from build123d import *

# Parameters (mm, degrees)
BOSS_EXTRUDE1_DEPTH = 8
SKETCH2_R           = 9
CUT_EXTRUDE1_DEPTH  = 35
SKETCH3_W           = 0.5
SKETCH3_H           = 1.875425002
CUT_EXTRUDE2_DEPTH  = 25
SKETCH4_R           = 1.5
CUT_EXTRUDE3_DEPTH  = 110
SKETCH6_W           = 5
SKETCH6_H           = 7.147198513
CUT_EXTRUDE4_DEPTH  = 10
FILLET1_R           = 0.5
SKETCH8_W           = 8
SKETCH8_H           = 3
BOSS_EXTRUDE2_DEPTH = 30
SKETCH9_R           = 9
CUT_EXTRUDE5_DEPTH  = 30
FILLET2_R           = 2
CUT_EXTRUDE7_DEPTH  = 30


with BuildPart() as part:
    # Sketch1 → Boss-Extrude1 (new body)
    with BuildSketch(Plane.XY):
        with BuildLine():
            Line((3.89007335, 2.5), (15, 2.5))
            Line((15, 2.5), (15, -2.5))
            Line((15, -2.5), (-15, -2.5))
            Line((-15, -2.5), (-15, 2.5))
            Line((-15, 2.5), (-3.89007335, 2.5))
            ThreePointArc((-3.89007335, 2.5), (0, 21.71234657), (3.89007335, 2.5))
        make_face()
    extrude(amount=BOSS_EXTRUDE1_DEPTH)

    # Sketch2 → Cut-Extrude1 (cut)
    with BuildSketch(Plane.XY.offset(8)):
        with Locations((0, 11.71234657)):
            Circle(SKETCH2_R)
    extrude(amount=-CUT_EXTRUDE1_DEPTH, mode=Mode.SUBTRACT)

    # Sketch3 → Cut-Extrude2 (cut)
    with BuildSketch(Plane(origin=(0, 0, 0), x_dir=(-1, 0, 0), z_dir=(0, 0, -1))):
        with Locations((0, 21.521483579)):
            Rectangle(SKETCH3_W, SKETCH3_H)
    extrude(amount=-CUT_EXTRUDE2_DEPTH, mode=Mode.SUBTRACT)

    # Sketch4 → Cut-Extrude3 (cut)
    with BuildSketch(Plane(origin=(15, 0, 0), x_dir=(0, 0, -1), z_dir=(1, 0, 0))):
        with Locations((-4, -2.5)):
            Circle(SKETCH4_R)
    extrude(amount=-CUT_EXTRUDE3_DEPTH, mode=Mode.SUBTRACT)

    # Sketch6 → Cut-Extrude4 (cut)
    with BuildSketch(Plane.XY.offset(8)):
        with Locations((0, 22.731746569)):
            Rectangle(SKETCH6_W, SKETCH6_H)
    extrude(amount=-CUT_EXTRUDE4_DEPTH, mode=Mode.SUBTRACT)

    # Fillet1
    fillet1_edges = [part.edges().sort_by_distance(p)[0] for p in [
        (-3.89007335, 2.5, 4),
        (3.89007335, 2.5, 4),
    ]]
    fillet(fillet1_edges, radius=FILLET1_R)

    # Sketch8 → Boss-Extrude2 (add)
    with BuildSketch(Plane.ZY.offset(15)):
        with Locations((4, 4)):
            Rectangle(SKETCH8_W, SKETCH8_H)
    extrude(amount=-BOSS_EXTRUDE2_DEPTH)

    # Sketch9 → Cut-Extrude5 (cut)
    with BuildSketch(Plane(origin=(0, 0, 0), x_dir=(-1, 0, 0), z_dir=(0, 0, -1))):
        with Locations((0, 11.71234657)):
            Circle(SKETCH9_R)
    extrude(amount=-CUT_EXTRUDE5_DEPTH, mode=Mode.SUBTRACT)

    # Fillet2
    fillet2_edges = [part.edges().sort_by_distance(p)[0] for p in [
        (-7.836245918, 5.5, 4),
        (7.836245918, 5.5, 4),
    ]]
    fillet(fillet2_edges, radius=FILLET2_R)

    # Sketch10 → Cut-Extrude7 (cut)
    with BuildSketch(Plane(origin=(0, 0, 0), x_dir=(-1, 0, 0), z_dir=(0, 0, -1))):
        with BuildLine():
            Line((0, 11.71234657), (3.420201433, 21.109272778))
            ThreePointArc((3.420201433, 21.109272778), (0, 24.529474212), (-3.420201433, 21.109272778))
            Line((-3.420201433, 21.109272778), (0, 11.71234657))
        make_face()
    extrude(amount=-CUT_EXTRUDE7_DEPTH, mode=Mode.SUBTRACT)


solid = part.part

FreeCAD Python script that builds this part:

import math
import FreeCAD as App
import Part
import Sketcher
from FreeCAD import Vector
Q = App.Units.Quantity


def edges_at(feature, points):
    """Names of the edges that pass closest to the given points."""
    edges = feature.Shape.Edges
    near = lambda p: min(range(len(edges)), key=lambda i: edges[i].distToShape(Part.Vertex(*p))[0])
    return sorted({f"Edge{near(p) + 1}" for p in points})

doc = App.newDocument("Part")
body = doc.addObject("PartDesign::Body", "Body")

# Sketch on XY plane
sketch1 = doc.addObject("Sketcher::SketchObject", "Sketch")
body.addObject(sketch1)
sketch1.AttachmentSupport = (doc.XY_Plane, [""])
sketch1.MapMode = "FlatFace"
sketch1.addGeometry([
    Part.LineSegment(Vector(15, 2, 0), Vector(4, 2, 0)),  # 0
    Part.ArcOfCircle(Part.Circle(Vector(0, 12, 0), Vector(0, 0, 1), 10), math.radians(-67), math.radians(247)),  # 1
    Part.LineSegment(Vector(-4, 2, 0), Vector(-15, 2, 0)),  # 2
    Part.LineSegment(Vector(-15, 2, 0), Vector(-15, -2, 0)),  # 3
    Part.LineSegment(Vector(-15, -2, 0), Vector(15, -2, 0)),  # 4
    Part.LineSegment(Vector(15, -2, 0), Vector(15, 2, 0)),  # 5
], False)
sketch1.addConstraint([
    Sketcher.Constraint("Coincident", 0, 2, 1, 1),
    Sketcher.Constraint("Coincident", 1, 2, 2, 1),
    Sketcher.Constraint("Coincident", 2, 2, 3, 1),
    Sketcher.Constraint("Coincident", 3, 2, 4, 1),
    Sketcher.Constraint("Coincident", 4, 2, 5, 1),
    Sketcher.Constraint("Coincident", 5, 2, 0, 1),
    Sketcher.Constraint("Horizontal", 0),
    Sketcher.Constraint("Horizontal", 2),
    Sketcher.Constraint("Vertical", 3),
    Sketcher.Constraint("Horizontal", 4),
    Sketcher.Constraint("Vertical", 5),
    Sketcher.Constraint("Symmetric", 2, 2, 4, 2, -1, 1),
    Sketcher.Constraint("Symmetric", 0, 2, 1, 2, -2),
    Sketcher.Constraint("Radius", 1, 10.0),
    Sketcher.Constraint("DistanceX", 4, 1, 4, 2, 30.0),
    Sketcher.Constraint("DistanceY", 3, 2, 3, 1, 5.0),
    Sketcher.Constraint("DistanceX", 0, 2, 0, 1, 11.109927),
])
pad1 = doc.addObject("PartDesign::Pad", "Pad")
body.addObject(pad1)
pad1.Profile = sketch1
pad1.Length = 8

# Sketch on XY plane
sketch2 = doc.addObject("Sketcher::SketchObject", "Sketch001")
body.addObject(sketch2)
sketch2.AttachmentSupport = (doc.XY_Plane, [""])
sketch2.MapMode = "FlatFace"
sketch2.AttachmentOffset = App.Placement(Vector(0, 0, 8), App.Rotation())
sketch2.addGeometry(Part.Circle(Vector(0, 12, 0), Vector(0, 0, 1), 9), False)
sketch2.addConstraint([
    Sketcher.Constraint("PointOnObject", 0, 3, -2),
    Sketcher.Constraint("Diameter", 0, 18.0),
    Sketcher.Constraint("DistanceY", -1, 1, 0, 3, 11.712347),
])
pocket1 = doc.addObject("PartDesign::Pocket", "Pocket")
body.addObject(pocket1)
pocket1.Profile = sketch2
pocket1.Length = 35

# Sketch on XY plane
sketch3 = doc.addObject("Sketcher::SketchObject", "Sketch002")
body.addObject(sketch3)
sketch3.AttachmentSupport = (doc.XY_Plane, [""])
sketch3.MapMode = "FlatFace"
sketch3.addGeometry([
    Part.LineSegment(Vector(0.2, 22.5, 0), Vector(0.2, 20.6, 0)),
    Part.LineSegment(Vector(0.2, 20.6, 0), Vector(-0.2, 20.6, 0)),
    Part.LineSegment(Vector(-0.2, 20.6, 0), Vector(-0.2, 22.5, 0)),
    Part.LineSegment(Vector(-0.2, 22.5, 0), Vector(0.2, 22.5, 0)),
], False)
sketch3.addConstraint([
    Sketcher.Constraint("Coincident", 0, 2, 1, 1),
    Sketcher.Constraint("Coincident", 1, 2, 2, 1),
    Sketcher.Constraint("Coincident", 2, 2, 3, 1),
    Sketcher.Constraint("Coincident", 3, 2, 0, 1),
    Sketcher.Constraint("Vertical", 0),
    Sketcher.Constraint("Horizontal", 1),
    Sketcher.Constraint("Vertical", 2),
    Sketcher.Constraint("Horizontal", 3),
    Sketcher.Constraint("DistanceX", 1, 2, 1, 1, 0.5),
    Sketcher.Constraint("DistanceX", -1, 1, 0, 2, 0.25),
    Sketcher.Constraint("DistanceY", 0, 2, 0, 1, 1.875425),
    Sketcher.Constraint("DistanceY", -1, 1, 0, 2, 20.583771),
])
pocket2 = doc.addObject("PartDesign::Pocket", "Pocket001")
body.addObject(pocket2)
pocket2.Profile = sketch3
pocket2.Length = 25
pocket2.Reversed = True

# Sketch on YZ plane
sketch4 = doc.addObject("Sketcher::SketchObject", "Sketch003")
body.addObject(sketch4)
sketch4.AttachmentSupport = (doc.YZ_Plane, [""])
sketch4.MapMode = "FlatFace"
sketch4.AttachmentOffset = App.Placement(Vector(0, 0, 15), App.Rotation())
sketch4.addGeometry(Part.Circle(Vector(-2.5, 4, 0), Vector(0, 0, 1), 1.5), False)
sketch4.addConstraint([
    Sketcher.Constraint("Diameter", 0, 3.0),
    Sketcher.Constraint("DistanceY", -1, 1, 0, 3, 4.0),
    Sketcher.Constraint("DistanceX", 0, 3, -1, 1, 2.5),
])
pocket3 = doc.addObject("PartDesign::Pocket", "Pocket002")
body.addObject(pocket3)
pocket3.Profile = sketch4
pocket3.Length = 110

# Sketch on XY plane
sketch5 = doc.addObject("Sketcher::SketchObject", "Sketch004")
body.addObject(sketch5)
sketch5.AttachmentSupport = (doc.XY_Plane, [""])
sketch5.MapMode = "FlatFace"
sketch5.AttachmentOffset = App.Placement(Vector(0, 0, 8), App.Rotation())
sketch5.addGeometry([
    Part.LineSegment(Vector(-2, 26, 0), Vector(-2, 19, 0)),
    Part.LineSegment(Vector(-2, 19, 0), Vector(2, 19, 0)),
    Part.LineSegment(Vector(2, 19, 0), Vector(2, 26, 0)),
    Part.LineSegment(Vector(2, 26, 0), Vector(-2, 26, 0)),
], False)
sketch5.addConstraint([
    Sketcher.Constraint("Coincident", 0, 2, 1, 1),
    Sketcher.Constraint("Coincident", 1, 2, 2, 1),
    Sketcher.Constraint("Coincident", 2, 2, 3, 1),
    Sketcher.Constraint("Coincident", 3, 2, 0, 1),
    Sketcher.Constraint("Vertical", 0),
    Sketcher.Constraint("Horizontal", 1),
    Sketcher.Constraint("Vertical", 2),
    Sketcher.Constraint("Horizontal", 3),
    Sketcher.Constraint("DistanceX", 1, 1, 1, 2, 5.0),
    Sketcher.Constraint("DistanceX", 0, 2, -1, 1, 2.5),
    Sketcher.Constraint("DistanceY", 0, 2, 0, 1, 7.147199),
    Sketcher.Constraint("DistanceY", -1, 1, 0, 2, 19.158147),
])
pocket4 = doc.addObject("PartDesign::Pocket", "Pocket003")
body.addObject(pocket4)
pocket4.Profile = sketch5
pocket4.Length = 10
doc.recompute()

fillet = doc.addObject("PartDesign::Fillet", "Fillet")
body.addObject(fillet)
fillet.Base = (pocket4, edges_at(pocket4, [(-3.89, 2.5, 4), (3.89, 2.5, 4)]))
fillet.Radius = 0.5

# Sketch on YZ plane
sketch6 = doc.addObject("Sketcher::SketchObject", "Sketch005")
body.addObject(sketch6)
sketch6.AttachmentSupport = (doc.YZ_Plane, [""])
sketch6.MapMode = "FlatFace"
sketch6.AttachmentOffset = App.Placement(Vector(0, 0, -15), App.Rotation())
sketch6.addGeometry([
    Part.LineSegment(Vector(5.5, 0, 0), Vector(2.5, 0, 0)),
    Part.LineSegment(Vector(2.5, 0, 0), Vector(2.5, 8, 0)),
    Part.LineSegment(Vector(2.5, 8, 0), Vector(5.5, 8, 0)),
    Part.LineSegment(Vector(5.5, 8, 0), Vector(5.5, 0, 0)),
], False)
sketch6.addConstraint([
    Sketcher.Constraint("Coincident", 0, 2, 1, 1),
    Sketcher.Constraint("Coincident", 1, 2, 2, 1),
    Sketcher.Constraint("Coincident", 2, 2, 3, 1),
    Sketcher.Constraint("Coincident", 3, 2, 0, 1),
    Sketcher.Constraint("Horizontal", 0),
    Sketcher.Constraint("Vertical", 1),
    Sketcher.Constraint("Horizontal", 2),
    Sketcher.Constraint("Vertical", 3),
    Sketcher.Constraint("PointOnObject", 0, 2, -1),
    Sketcher.Constraint("DistanceX", 0, 2, 0, 1, 3.0),
    Sketcher.Constraint("DistanceY", 1, 1, 1, 2, 8.0),
    Sketcher.Constraint("DistanceX", -1, 1, 0, 2, 2.5),
])
pad2 = doc.addObject("PartDesign::Pad", "Pad001")
body.addObject(pad2)
pad2.Profile = sketch6
pad2.Length = 30

# Sketch on XY plane
sketch7 = doc.addObject("Sketcher::SketchObject", "Sketch006")
body.addObject(sketch7)
sketch7.AttachmentSupport = (doc.XY_Plane, [""])
sketch7.MapMode = "FlatFace"
sketch7.addGeometry(Part.Circle(Vector(0, 12, 0), Vector(0, 0, 1), 9), False)
sketch7.addConstraint([
    Sketcher.Constraint("PointOnObject", 0, 3, -2),
    Sketcher.Constraint("Diameter", 0, 18.0),
    Sketcher.Constraint("DistanceY", -1, 1, 0, 3, 11.712347),
])
pocket5 = doc.addObject("PartDesign::Pocket", "Pocket004")
body.addObject(pocket5)
pocket5.Profile = sketch7
pocket5.Length = 30
pocket5.Reversed = True
doc.recompute()

fillet2 = doc.addObject("PartDesign::Fillet", "Fillet001")
body.addObject(fillet2)
fillet2.Base = (pocket5, edges_at(pocket5, [(-7.836, 5.5, 4), (7.836, 5.5, 4)]))
fillet2.Radius = 2

# Sketch on XY plane
sketch8 = doc.addObject("Sketcher::SketchObject", "Sketch007")
body.addObject(sketch8)
sketch8.AttachmentSupport = (doc.XY_Plane, [""])
sketch8.MapMode = "FlatFace"
sketch8.addGeometry([
    Part.LineSegment(Vector(0, 11.7, 0), Vector(-3.4, 21.1, 0)),
    Part.ArcOfCircle(Part.Circle(Vector(0, 21.1, 0), Vector(0, 0, 1), 3.4), math.radians(0), math.radians(180)),
    Part.LineSegment(Vector(3.4, 21.1, 0), Vector(0, 11.7, 0)),
], False)
sketch8.addConstraint([
    Sketcher.Constraint("Coincident", 0, 2, 1, 2),
    Sketcher.Constraint("Coincident", 1, 1, 2, 1),
    Sketcher.Constraint("Coincident", 2, 2, 0, 1),
    Sketcher.Constraint("Symmetric", 0, 2, 1, 1, -2),
    Sketcher.Constraint("PointOnObject", 2, 2, -2),
    Sketcher.Constraint("Horizontal", 1, 3, 0, 2),
    Sketcher.Constraint("Angle", 0, Q("110 deg")),
    Sketcher.Constraint("Distance", 0, 10.0),
    Sketcher.Constraint("DistanceY", -1, 1, 1, 3, 21.109273),
])
pocket6 = doc.addObject("PartDesign::Pocket", "Pocket005")
body.addObject(pocket6)
pocket6.Profile = sketch8
pocket6.Length = 30
pocket6.Reversed = True

doc.recompute()
